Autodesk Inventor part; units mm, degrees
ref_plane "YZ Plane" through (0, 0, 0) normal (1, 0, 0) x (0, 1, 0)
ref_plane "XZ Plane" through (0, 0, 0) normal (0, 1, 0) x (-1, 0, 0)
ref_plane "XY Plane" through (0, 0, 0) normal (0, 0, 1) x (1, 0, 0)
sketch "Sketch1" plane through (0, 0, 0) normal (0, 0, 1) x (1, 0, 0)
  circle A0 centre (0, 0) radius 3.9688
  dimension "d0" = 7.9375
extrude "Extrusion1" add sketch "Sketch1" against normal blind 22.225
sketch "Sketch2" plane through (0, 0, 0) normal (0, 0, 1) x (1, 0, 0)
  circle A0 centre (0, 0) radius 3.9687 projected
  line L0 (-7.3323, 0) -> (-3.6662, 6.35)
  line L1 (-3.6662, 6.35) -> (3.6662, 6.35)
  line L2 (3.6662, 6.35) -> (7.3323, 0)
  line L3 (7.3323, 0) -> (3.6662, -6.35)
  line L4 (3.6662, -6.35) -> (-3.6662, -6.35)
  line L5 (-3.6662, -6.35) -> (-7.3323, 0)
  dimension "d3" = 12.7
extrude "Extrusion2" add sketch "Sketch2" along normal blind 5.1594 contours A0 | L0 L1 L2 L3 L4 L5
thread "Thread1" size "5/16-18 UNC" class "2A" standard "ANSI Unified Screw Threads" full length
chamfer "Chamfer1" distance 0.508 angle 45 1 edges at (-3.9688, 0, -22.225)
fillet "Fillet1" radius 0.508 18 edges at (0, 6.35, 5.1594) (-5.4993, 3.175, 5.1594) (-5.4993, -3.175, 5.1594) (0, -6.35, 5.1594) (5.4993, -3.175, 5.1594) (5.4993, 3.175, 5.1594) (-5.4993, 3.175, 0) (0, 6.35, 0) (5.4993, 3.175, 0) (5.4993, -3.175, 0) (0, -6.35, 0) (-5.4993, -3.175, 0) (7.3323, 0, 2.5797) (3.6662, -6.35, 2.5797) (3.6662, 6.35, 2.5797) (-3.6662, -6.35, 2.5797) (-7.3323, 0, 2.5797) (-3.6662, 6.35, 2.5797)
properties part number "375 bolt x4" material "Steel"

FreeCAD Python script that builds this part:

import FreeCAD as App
import Part
import Sketcher
from FreeCAD import Vector
Q = App.Units.Quantity


def edges_at(feature, points):
    """Names of the edges that pass closest to the given points."""
    edges = feature.Shape.Edges
    near = lambda p: min(range(len(edges)), key=lambda i: edges[i].distToShape(Part.Vertex(*p))[0])
    return sorted({f"Edge{near(p) + 1}" for p in points})

doc = App.newDocument("Part")
body = doc.addObject("PartDesign::Body", "Body")

sketch1 = body.newObject("Sketcher::SketchObject", "Sketch")
sketch1.AttachmentSupport = (doc.getObject("XY_Plane"), [""])
sketch1.MapMode = "FlatFace"
sketch1.addGeometry(Part.Circle(Vector(0, 0, 0), Vector(0, 0, 1), 3.9688), False)
sketch1.addConstraint([
    Sketcher.Constraint("Coincident", 0, 3, -1, 1),
    Sketcher.Constraint("Diameter", 0, Q("0.3125 in")),
])
pad1 = body.newObject("PartDesign::Pad", "Pad")
pad1.Profile = sketch1
pad1.Length = Q("0.875 in")
pad1.Reversed = True

sketch2 = body.newObject("Sketcher::SketchObject", "Sketch001")
sketch2.AttachmentSupport = (doc.getObject("XY_Plane"), [""])
sketch2.MapMode = "FlatFace"
sketch2.addGeometry([
    Part.LineSegment(Vector(-3.6662, 6.35, 0), Vector(-7.3323, 0, 0)),
    Part.LineSegment(Vector(-7.3323, 0, 0), Vector(-3.6662, -6.35, 0)),
    Part.LineSegment(Vector(-3.6662, -6.35, 0), Vector(3.6662, -6.35, 0)),
    Part.LineSegment(Vector(3.6662, -6.35, 0), Vector(7.3323, 0, 0)),
    Part.LineSegment(Vector(7.3323, 0, 0), Vector(3.6662, 6.35, 0)),
    Part.LineSegment(Vector(3.6662, 6.35, 0), Vector(-3.6662, 6.35, 0)),
], False)
sketch2.addConstraint([
    Sketcher.Constraint("Coincident", 0, 2, 1, 1),
    Sketcher.Constraint("Coincident", 1, 2, 2, 1),
    Sketcher.Constraint("Coincident", 2, 2, 3, 1),
    Sketcher.Constraint("Coincident", 3, 2, 4, 1),
    Sketcher.Constraint("Coincident", 4, 2, 5, 1),
    Sketcher.Constraint("Coincident", 5, 2, 0, 1),
    Sketcher.Constraint("Horizontal", 2),
    Sketcher.Constraint("Horizontal", 5),
    Sketcher.Constraint("Symmetric", 0, 2, 3, 2, -1, 1),
    Sketcher.Constraint("Symmetric", 1, 2, 4, 2, -1, 1),
    Sketcher.Constraint("PointOnObject", 0, 2, -1),
    Sketcher.Constraint("Parallel", 0, 3),
    Sketcher.Constraint("Vertical", 2, 2, 4, 2),
    Sketcher.Constraint("DistanceY", 2, 2, 4, 2, Q("0.5 in")),
    Sketcher.Constraint("Angle", 0, Q("-119.9995 deg")),
    Sketcher.Constraint("DistanceX", 0, 2, 2, 2, Q("0.433 in")),
])
pad2 = body.newObject("PartDesign::Pad", "Pad001")
pad2.Profile = sketch2
pad2.Length = Q("0.203126 in")
doc.recompute()

chamfer = body.newObject("PartDesign::Chamfer", "Chamfer")
chamfer.Base = (pad2, edges_at(pad2, [(-3.969, 0, -22.225)]))
chamfer.Size = Q("0.02 in")
doc.recompute()

fillet = body.newObject("PartDesign::Fillet", "Fillet")
fillet.Base = (chamfer, edges_at(chamfer, [
    (0, 6.35, 5.159),
    (-5.499, 3.175, 5.159),
    (-5.499, -3.175, 5.159),
    (0, -6.35, 5.159),
    (5.499, -3.175, 5.159),
    (5.499, 3.175, 5.159),
    (-5.499, 3.175, 0),
    (0, 6.35, 0),
    (5.499, 3.175, 0),
    (5.499, -3.175, 0),
    (0, -6.35, 0),
    (-5.499, -3.175, 0),
    (7.332, 0, 2.58),
    (3.666, -6.35, 2.58),
    (3.666, 6.35, 2.58),
    (-3.666, -6.35, 2.58),
    (-7.332, 0, 2.58),
    (-3.666, 6.35, 2.58),
]))
fillet.Radius = Q("0.02 in")

doc.recompute()
